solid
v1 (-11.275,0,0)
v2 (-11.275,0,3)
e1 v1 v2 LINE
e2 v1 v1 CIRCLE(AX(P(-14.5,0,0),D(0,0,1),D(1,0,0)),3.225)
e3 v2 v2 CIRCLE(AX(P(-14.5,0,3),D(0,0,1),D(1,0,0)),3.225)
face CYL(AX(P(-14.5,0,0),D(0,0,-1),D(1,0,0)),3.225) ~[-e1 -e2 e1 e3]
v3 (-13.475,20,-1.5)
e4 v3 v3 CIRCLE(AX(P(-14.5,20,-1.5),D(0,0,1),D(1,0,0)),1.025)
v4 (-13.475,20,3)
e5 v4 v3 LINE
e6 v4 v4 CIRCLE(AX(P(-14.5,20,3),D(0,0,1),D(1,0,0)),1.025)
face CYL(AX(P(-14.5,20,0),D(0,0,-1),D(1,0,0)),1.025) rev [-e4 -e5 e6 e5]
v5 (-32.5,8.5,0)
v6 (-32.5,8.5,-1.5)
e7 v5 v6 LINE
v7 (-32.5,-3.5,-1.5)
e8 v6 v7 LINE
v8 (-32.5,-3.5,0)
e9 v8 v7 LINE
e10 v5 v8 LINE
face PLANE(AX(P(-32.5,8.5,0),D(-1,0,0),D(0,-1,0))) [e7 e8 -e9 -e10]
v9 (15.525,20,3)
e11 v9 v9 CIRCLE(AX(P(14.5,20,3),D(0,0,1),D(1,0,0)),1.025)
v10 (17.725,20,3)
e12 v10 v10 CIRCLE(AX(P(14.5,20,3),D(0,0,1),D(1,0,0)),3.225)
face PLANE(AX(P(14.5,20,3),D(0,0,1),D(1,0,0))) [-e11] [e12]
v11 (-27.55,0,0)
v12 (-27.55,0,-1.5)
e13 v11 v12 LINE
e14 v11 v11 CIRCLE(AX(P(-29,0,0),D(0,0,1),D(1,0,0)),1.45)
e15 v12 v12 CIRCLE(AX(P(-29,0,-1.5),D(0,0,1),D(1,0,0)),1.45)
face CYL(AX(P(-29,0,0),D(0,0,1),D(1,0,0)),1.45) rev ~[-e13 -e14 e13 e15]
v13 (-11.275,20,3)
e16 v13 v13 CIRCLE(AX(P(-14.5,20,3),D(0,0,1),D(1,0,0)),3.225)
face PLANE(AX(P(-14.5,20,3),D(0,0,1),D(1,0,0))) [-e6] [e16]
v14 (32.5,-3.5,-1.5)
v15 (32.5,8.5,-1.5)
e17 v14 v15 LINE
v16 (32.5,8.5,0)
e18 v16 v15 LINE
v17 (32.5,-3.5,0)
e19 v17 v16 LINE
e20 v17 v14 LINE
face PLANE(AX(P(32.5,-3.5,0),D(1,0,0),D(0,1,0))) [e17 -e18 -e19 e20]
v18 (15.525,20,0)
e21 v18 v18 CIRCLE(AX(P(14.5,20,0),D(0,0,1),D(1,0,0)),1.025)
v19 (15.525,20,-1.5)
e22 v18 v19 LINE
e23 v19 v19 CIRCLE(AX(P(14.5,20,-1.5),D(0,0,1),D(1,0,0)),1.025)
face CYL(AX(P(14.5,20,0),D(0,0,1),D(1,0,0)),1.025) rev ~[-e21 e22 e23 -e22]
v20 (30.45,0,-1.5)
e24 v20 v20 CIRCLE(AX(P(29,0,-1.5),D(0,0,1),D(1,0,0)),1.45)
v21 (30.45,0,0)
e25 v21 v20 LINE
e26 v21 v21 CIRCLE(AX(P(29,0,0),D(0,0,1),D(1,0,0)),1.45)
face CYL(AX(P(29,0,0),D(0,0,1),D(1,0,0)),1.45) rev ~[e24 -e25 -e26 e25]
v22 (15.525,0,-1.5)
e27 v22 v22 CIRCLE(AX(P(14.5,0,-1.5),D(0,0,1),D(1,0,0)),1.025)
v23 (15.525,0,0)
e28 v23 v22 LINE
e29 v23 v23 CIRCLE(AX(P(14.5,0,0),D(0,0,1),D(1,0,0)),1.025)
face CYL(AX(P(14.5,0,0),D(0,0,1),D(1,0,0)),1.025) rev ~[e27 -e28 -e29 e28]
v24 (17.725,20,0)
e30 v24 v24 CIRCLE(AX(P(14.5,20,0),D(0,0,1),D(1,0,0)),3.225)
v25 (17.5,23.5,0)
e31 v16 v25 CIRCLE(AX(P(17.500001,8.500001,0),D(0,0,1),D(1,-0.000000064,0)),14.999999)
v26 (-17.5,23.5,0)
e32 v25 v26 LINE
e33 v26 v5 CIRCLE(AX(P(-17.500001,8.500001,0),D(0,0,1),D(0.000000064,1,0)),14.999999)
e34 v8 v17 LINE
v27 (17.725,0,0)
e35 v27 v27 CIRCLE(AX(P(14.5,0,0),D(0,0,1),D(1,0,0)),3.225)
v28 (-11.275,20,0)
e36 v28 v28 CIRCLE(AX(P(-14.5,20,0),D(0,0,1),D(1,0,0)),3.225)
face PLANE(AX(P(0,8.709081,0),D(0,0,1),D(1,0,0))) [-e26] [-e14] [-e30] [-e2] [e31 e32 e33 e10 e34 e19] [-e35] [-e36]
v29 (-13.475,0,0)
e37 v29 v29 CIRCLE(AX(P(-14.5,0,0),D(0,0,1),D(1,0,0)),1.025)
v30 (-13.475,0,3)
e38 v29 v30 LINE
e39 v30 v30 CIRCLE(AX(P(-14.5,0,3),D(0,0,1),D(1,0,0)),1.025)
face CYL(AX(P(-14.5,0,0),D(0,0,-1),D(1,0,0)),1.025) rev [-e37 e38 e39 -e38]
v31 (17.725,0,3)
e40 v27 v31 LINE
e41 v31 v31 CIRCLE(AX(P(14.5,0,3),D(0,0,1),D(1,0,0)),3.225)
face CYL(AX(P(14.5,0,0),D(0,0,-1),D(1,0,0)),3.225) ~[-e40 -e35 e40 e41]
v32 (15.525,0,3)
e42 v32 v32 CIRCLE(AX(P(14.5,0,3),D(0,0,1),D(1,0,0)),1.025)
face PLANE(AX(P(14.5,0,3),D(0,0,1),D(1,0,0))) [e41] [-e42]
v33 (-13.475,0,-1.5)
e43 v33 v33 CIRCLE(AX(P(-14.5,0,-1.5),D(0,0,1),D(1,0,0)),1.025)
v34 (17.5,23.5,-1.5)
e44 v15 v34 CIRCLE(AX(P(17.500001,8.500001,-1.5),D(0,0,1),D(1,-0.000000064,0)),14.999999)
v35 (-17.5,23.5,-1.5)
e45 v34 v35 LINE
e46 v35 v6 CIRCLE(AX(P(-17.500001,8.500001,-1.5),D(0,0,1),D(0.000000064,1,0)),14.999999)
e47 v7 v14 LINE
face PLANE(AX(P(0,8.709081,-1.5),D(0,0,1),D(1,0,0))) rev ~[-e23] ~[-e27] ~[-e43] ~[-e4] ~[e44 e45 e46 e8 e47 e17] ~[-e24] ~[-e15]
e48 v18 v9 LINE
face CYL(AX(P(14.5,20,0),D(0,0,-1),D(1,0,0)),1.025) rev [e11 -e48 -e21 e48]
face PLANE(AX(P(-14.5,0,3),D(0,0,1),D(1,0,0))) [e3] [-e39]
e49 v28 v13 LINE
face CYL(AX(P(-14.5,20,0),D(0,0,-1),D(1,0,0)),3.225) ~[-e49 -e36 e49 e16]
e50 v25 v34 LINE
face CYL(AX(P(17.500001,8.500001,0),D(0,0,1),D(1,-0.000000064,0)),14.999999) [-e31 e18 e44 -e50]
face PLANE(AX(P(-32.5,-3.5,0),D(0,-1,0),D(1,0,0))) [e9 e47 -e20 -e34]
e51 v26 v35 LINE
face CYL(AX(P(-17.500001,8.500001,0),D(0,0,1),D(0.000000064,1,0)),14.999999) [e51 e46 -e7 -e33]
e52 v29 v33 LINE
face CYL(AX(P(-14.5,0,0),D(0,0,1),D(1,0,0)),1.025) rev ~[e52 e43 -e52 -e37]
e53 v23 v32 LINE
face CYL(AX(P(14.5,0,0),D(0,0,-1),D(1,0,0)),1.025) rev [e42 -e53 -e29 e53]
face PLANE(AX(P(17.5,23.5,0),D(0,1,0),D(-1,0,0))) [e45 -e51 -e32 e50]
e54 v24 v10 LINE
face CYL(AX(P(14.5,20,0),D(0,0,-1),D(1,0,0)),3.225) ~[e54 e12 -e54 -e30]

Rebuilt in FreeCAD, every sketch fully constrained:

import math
import FreeCAD as App
import Part
import Sketcher
Q = App.Units.Quantity

doc = App.newDocument("Part")
body = doc.addObject("PartDesign::Body", "Body")

# Sketch on XY plane
sketch1 = body.newObject("Sketcher::SketchObject", "Sketch")
sketch1.AttachmentSupport = (doc.getObject("XY_Plane"), [""])
sketch1.MapMode = "FlatFace"
sketch1.addGeometry(Part.LineSegment(App.Vector(-32.5, 8.5, 0), App.Vector(-32.5, -3.5, 0)), False)
sketch1.addGeometry(Part.LineSegment(App.Vector(-32.5, -3.5, 0), App.Vector(32.5, -3.5, 0)), False)
sketch1.addGeometry(Part.LineSegment(App.Vector(32.5, -3.5, 0), App.Vector(32.5, 8.5, 0)), False)
sketch1.addGeometry(Part.ArcOfCircle(Part.Circle(App.Vector(17.5, 8.5, 0), App.Vector(0, 0, 1), 15), math.radians(0), math.radians(90)), False)
sketch1.addGeometry(Part.LineSegment(App.Vector(17.5, 23.5, 0), App.Vector(-17.5, 23.5, 0)), False)
sketch1.addGeometry(Part.ArcOfCircle(Part.Circle(App.Vector(-17.5, 8.5, 0), App.Vector(0, 0, 1), 15), math.radians(90), math.radians(180)), False)
sketch1.addGeometry(Part.Circle(App.Vector(-29, 0, 0), App.Vector(0, 0, 1), 1.4), False)
sketch1.addGeometry(Part.Circle(App.Vector(-14.5, 0, 0), App.Vector(0, 0, 1), 1), False)
sketch1.addGeometry(Part.Circle(App.Vector(14.5, 0, 0), App.Vector(0, 0, 1), 1), False)
sketch1.addGeometry(Part.Circle(App.Vector(29, 0, 0), App.Vector(0, 0, 1), 1.4), False)
sketch1.addGeometry(Part.Circle(App.Vector(-14.5, 20, 0), App.Vector(0, 0, 1), 1), False)
sketch1.addGeometry(Part.Circle(App.Vector(14.5, 20, 0), App.Vector(0, 0, 1), 1), False)
sketch1.addConstraint(Sketcher.Constraint("Coincident", 0, 2, 1, 1))
sketch1.addConstraint(Sketcher.Constraint("Coincident", 1, 2, 2, 1))
sketch1.addConstraint(Sketcher.Constraint("Tangent", 2, 2, 3, 1))
sketch1.addConstraint(Sketcher.Constraint("Tangent", 3, 2, 4, 1))
sketch1.addConstraint(Sketcher.Constraint("Tangent", 4, 2, 5, 1))
sketch1.addConstraint(Sketcher.Constraint("Tangent", 5, 2, 0, 1))
sketch1.addConstraint(Sketcher.Constraint("Vertical", 0))
sketch1.addConstraint(Sketcher.Constraint("Horizontal", 1))
sketch1.addConstraint(Sketcher.Constraint("Vertical", 2))
sketch1.addConstraint(Sketcher.Constraint("Horizontal", 4))
sketch1.addConstraint(Sketcher.Constraint("Equal", 3, 5))
sketch1.addConstraint(Sketcher.Constraint("Equal", 7, 8))
sketch1.addConstraint(Sketcher.Constraint("Equal", 6, 9))
sketch1.addConstraint(Sketcher.Constraint("Equal", 8, 10))
sketch1.addConstraint(Sketcher.Constraint("Equal", 10, 11))
sketch1.addConstraint(Sketcher.Constraint("Symmetric", 7, 3, 8, 3, -1, 1))
sketch1.addConstraint(Sketcher.Constraint("Symmetric", 6, 3, 9, 3, -1, 1))
sketch1.addConstraint(Sketcher.Constraint("Symmetric", 10, 3, 11, 3, -2))
sketch1.addConstraint(Sketcher.Constraint("PointOnObject", 6, 3, -1))
sketch1.addConstraint(Sketcher.Constraint("PointOnObject", 7, 3, -1))
sketch1.addConstraint(Sketcher.Constraint("Vertical", 7, 3, 10, 3))
sketch1.addConstraint(Sketcher.Constraint("Radius", 3, Q("14.999999 mm")))
sketch1.addConstraint(Sketcher.Constraint("Diameter", 6, Q("2.9 mm")))
sketch1.addConstraint(Sketcher.Constraint("Diameter", 7, Q("2.05 mm")))
sketch1.addConstraint(Sketcher.Constraint("DistanceX", 1, 1, 1, 2, Q("65 mm")))
sketch1.addConstraint(Sketcher.Constraint("DistanceY", 0, 2, 0, 1, Q("12 mm")))
sketch1.addConstraint(Sketcher.Constraint("DistanceX", 6, 3, -1, 1, Q("29 mm")))
sketch1.addConstraint(Sketcher.Constraint("DistanceY", -1, 1, 10, 3, Q("20 mm")))
sketch1.addConstraint(Sketcher.Constraint("DistanceX", 5, 3, 7, 3, Q("3.000001 mm")))
sketch1.addConstraint(Sketcher.Constraint("DistanceX", 8, 3, 3, 3, Q("3.000001 mm")))
sketch1.addConstraint(Sketcher.Constraint("DistanceY", -1, 1, 3, 3, Q("8.500001 mm")))
pad1 = body.newObject("PartDesign::Pad", "Pad")
pad1.Profile = sketch1
pad1.Length = 1.5
pad1.Reversed = True

# Sketch on XY plane
sketch2 = body.newObject("Sketcher::SketchObject", "Sketch001")
sketch2.AttachmentSupport = (doc.getObject("XY_Plane"), [""])
sketch2.MapMode = "FlatFace"
sketch2.addGeometry(Part.Circle(App.Vector(-14.5, 20, 0), App.Vector(0, 0, 1), 3.2), False)
sketch2.addGeometry(Part.Circle(App.Vector(-14.5, 20, 0), App.Vector(0, 0, 1), 1), False)
sketch2.addGeometry(Part.Circle(App.Vector(-14.5, 0, 0), App.Vector(0, 0, 1), 3.2), False)
sketch2.addGeometry(Part.Circle(App.Vector(-14.5, 0, 0), App.Vector(0, 0, 1), 1), False)
sketch2.addGeometry(Part.Circle(App.Vector(14.5, 0, 0), App.Vector(0, 0, 1), 3.2), False)
sketch2.addGeometry(Part.Circle(App.Vector(14.5, 0, 0), App.Vector(0, 0, 1), 1), False)
sketch2.addGeometry(Part.Circle(App.Vector(14.5, 20, 0), App.Vector(0, 0, 1), 3.2), False)
sketch2.addGeometry(Part.Circle(App.Vector(14.5, 20, 0), App.Vector(0, 0, 1), 1), False)
sketch2.addConstraint(Sketcher.Constraint("Coincident", 1, 3, 0, 3))
sketch2.addConstraint(Sketcher.Constraint("Coincident", 3, 3, 2, 3))
sketch2.addConstraint(Sketcher.Constraint("Coincident", 5, 3, 4, 3))
sketch2.addConstraint(Sketcher.Constraint("Coincident", 7, 3, 6, 3))
sketch2.addConstraint(Sketcher.Constraint("Equal", 0, 2))
sketch2.addConstraint(Sketcher.Constraint("Equal", 1, 3))
sketch2.addConstraint(Sketcher.Constraint("Equal", 2, 4))
sketch2.addConstraint(Sketcher.Constraint("Equal", 3, 5))
sketch2.addConstraint(Sketcher.Constraint("Equal", 4, 6))
sketch2.addConstraint(Sketcher.Constraint("Equal", 5, 7))
sketch2.addConstraint(Sketcher.Constraint("Symmetric", 2, 3, 4, 3, -1, 1))
sketch2.addConstraint(Sketcher.Constraint("Symmetric", 0, 3, 6, 3, -2))
sketch2.addConstraint(Sketcher.Constraint("PointOnObject", 2, 3, -1))
sketch2.addConstraint(Sketcher.Constraint("Vertical", 1, 3, 2, 3))
sketch2.addConstraint(Sketcher.Constraint("Diameter", 0, Q("6.45 mm")))
sketch2.addConstraint(Sketcher.Constraint("Diameter", 1, Q("2.05 mm")))
sketch2.addConstraint(Sketcher.Constraint("DistanceY", -1, 1, 0, 3, Q("20 mm")))
sketch2.addConstraint(Sketcher.Constraint("DistanceX", 2, 3, 4, 3, Q("29 mm")))
pad2 = body.newObject("PartDesign::Pad", "Pad001")
pad2.Profile = sketch2
pad2.Length = 3

doc.recompute()
